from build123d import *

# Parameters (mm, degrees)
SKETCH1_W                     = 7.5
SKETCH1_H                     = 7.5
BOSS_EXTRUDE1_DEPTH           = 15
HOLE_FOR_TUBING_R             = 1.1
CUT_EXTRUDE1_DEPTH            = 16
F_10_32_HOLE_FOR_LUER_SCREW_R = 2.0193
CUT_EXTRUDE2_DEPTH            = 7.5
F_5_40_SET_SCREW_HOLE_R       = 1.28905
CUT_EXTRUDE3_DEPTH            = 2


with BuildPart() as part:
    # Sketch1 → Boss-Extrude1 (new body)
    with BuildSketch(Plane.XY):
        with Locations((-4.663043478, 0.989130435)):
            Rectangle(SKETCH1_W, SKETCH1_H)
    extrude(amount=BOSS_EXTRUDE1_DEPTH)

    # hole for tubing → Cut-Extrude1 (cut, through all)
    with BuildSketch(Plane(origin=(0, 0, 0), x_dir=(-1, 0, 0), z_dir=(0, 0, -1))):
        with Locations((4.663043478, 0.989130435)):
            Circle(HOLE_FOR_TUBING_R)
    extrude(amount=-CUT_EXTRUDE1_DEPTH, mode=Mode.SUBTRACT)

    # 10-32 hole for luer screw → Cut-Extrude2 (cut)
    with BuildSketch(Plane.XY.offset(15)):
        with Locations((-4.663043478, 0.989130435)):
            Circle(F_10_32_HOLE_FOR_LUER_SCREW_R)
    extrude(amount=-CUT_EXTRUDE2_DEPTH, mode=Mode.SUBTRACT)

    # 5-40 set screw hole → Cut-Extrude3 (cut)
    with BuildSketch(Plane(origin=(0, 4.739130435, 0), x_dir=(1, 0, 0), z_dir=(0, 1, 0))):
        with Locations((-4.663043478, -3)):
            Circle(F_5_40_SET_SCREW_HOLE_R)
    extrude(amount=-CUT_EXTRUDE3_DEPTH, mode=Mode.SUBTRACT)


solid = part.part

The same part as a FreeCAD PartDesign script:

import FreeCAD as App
import Part
import Sketcher

V = App.Vector


def add_polygon(sketch, points):
    """Adds a closed chain of lines whose ends are joined by coincident constraints."""
    first, n = sketch.GeometryCount, len(points)
    for a, b in zip(points, points[1:] + points[:1]):
        sketch.addGeometry(Part.LineSegment(App.Vector(*a, 0), App.Vector(*b, 0)), False)
    for i in range(n):
        sketch.addConstraint(Sketcher.Constraint("Coincident", first + i, 2, first + (i + 1) % n, 1))

doc = App.newDocument("Part")
body = doc.addObject("PartDesign::Body", "Body")

# Sketch on XY plane
sketch1 = body.newObject("Sketcher::SketchObject", "Sketch")
sketch1.AttachmentSupport = (doc.getObject("XY_Plane"), [""])
sketch1.MapMode = "FlatFace"
add_polygon(sketch1, [(-8, 5), (-8, -3), (-1, -3), (-1, 5)])  # lines 0-3
sketch1.addConstraint(Sketcher.Constraint("Vertical", 0))
sketch1.addConstraint(Sketcher.Constraint("Horizontal", 1))
sketch1.addConstraint(Sketcher.Constraint("Vertical", 2))
sketch1.addConstraint(Sketcher.Constraint("Horizontal", 3))
sketch1.addConstraint(Sketcher.Constraint("Equal", 3, 0))
sketch1.addConstraint(Sketcher.Constraint("DistanceX", 1, 1, 1, 2, 7.5))
sketch1.addConstraint(Sketcher.Constraint("DistanceY", 0, 2, -1, 1, 2.76087))
sketch1.addConstraint(Sketcher.Constraint("DistanceX", 0, 2, -1, 1, 8.413043))
pad1 = body.newObject("PartDesign::Pad", "Pad")
pad1.Profile = sketch1
pad1.Length = 15

# Sketch on XY plane
sketch2 = body.newObject("Sketcher::SketchObject", "Sketch001")
sketch2.AttachmentSupport = (doc.getObject("XY_Plane"), [""])
sketch2.MapMode = "FlatFace"
sketch2.addGeometry(Part.Circle(V(-4.7, 1, 0), V(0, 0, 1), 1.1), False)
sketch2.addConstraint(Sketcher.Constraint("Diameter", 0, 2.2))
sketch2.addConstraint(Sketcher.Constraint("DistanceY", -1, 1, 0, 3, 0.98913))
sketch2.addConstraint(Sketcher.Constraint("DistanceX", 0, 3, -1, 1, 4.663043))
pocket1 = body.newObject("PartDesign::Pocket", "Pocket")
pocket1.Profile = sketch2
pocket1.Type = "ThroughAll"
pocket1.Reversed = True

# Sketch on XY plane
sketch3 = body.newObject("Sketcher::SketchObject", "Sketch002")
sketch3.AttachmentSupport = (doc.getObject("XY_Plane"), [""])
sketch3.MapMode = "FlatFace"
sketch3.AttachmentOffset = App.Placement(V(0, 0, 15), App.Rotation())
sketch3.addGeometry(Part.Circle(V(-4.7, 1, 0), V(0, 0, 1), 2), False)
sketch3.addConstraint(Sketcher.Constraint("Diameter", 0, 4.0386))
sketch3.addConstraint(Sketcher.Constraint("DistanceY", -1, 1, 0, 3, 0.98913))
sketch3.addConstraint(Sketcher.Constraint("DistanceX", 0, 3, -1, 1, 4.663043))
pocket2 = body.newObject("PartDesign::Pocket", "Pocket001")
pocket2.Profile = sketch3
pocket2.Length = 7.5

# Sketch on XZ plane
sketch4 = body.newObject("Sketcher::SketchObject", "Sketch003")
sketch4.AttachmentSupport = (doc.getObject("XZ_Plane"), [""])
sketch4.MapMode = "FlatFace"
sketch4.AttachmentOffset = App.Placement(V(0, 0, -4.73913), App.Rotation())
sketch4.addGeometry(Part.Circle(V(-4.7, 3, 0), V(0, 0, 1), 1.3), False)
sketch4.addConstraint(Sketcher.Constraint("DistanceY", -1, 1, 0, 3, 3.0))
sketch4.addConstraint(Sketcher.Constraint("Diameter", 0, 2.5781))
sketch4.addConstraint(Sketcher.Constraint("DistanceX", 0, 3, -1, 1, 4.663043))
pocket3 = body.newObject("PartDesign::Pocket", "Pocket002")
pocket3.Profile = sketch4
pocket3.Length = 2
pocket3.Reversed = True

doc.recompute()
